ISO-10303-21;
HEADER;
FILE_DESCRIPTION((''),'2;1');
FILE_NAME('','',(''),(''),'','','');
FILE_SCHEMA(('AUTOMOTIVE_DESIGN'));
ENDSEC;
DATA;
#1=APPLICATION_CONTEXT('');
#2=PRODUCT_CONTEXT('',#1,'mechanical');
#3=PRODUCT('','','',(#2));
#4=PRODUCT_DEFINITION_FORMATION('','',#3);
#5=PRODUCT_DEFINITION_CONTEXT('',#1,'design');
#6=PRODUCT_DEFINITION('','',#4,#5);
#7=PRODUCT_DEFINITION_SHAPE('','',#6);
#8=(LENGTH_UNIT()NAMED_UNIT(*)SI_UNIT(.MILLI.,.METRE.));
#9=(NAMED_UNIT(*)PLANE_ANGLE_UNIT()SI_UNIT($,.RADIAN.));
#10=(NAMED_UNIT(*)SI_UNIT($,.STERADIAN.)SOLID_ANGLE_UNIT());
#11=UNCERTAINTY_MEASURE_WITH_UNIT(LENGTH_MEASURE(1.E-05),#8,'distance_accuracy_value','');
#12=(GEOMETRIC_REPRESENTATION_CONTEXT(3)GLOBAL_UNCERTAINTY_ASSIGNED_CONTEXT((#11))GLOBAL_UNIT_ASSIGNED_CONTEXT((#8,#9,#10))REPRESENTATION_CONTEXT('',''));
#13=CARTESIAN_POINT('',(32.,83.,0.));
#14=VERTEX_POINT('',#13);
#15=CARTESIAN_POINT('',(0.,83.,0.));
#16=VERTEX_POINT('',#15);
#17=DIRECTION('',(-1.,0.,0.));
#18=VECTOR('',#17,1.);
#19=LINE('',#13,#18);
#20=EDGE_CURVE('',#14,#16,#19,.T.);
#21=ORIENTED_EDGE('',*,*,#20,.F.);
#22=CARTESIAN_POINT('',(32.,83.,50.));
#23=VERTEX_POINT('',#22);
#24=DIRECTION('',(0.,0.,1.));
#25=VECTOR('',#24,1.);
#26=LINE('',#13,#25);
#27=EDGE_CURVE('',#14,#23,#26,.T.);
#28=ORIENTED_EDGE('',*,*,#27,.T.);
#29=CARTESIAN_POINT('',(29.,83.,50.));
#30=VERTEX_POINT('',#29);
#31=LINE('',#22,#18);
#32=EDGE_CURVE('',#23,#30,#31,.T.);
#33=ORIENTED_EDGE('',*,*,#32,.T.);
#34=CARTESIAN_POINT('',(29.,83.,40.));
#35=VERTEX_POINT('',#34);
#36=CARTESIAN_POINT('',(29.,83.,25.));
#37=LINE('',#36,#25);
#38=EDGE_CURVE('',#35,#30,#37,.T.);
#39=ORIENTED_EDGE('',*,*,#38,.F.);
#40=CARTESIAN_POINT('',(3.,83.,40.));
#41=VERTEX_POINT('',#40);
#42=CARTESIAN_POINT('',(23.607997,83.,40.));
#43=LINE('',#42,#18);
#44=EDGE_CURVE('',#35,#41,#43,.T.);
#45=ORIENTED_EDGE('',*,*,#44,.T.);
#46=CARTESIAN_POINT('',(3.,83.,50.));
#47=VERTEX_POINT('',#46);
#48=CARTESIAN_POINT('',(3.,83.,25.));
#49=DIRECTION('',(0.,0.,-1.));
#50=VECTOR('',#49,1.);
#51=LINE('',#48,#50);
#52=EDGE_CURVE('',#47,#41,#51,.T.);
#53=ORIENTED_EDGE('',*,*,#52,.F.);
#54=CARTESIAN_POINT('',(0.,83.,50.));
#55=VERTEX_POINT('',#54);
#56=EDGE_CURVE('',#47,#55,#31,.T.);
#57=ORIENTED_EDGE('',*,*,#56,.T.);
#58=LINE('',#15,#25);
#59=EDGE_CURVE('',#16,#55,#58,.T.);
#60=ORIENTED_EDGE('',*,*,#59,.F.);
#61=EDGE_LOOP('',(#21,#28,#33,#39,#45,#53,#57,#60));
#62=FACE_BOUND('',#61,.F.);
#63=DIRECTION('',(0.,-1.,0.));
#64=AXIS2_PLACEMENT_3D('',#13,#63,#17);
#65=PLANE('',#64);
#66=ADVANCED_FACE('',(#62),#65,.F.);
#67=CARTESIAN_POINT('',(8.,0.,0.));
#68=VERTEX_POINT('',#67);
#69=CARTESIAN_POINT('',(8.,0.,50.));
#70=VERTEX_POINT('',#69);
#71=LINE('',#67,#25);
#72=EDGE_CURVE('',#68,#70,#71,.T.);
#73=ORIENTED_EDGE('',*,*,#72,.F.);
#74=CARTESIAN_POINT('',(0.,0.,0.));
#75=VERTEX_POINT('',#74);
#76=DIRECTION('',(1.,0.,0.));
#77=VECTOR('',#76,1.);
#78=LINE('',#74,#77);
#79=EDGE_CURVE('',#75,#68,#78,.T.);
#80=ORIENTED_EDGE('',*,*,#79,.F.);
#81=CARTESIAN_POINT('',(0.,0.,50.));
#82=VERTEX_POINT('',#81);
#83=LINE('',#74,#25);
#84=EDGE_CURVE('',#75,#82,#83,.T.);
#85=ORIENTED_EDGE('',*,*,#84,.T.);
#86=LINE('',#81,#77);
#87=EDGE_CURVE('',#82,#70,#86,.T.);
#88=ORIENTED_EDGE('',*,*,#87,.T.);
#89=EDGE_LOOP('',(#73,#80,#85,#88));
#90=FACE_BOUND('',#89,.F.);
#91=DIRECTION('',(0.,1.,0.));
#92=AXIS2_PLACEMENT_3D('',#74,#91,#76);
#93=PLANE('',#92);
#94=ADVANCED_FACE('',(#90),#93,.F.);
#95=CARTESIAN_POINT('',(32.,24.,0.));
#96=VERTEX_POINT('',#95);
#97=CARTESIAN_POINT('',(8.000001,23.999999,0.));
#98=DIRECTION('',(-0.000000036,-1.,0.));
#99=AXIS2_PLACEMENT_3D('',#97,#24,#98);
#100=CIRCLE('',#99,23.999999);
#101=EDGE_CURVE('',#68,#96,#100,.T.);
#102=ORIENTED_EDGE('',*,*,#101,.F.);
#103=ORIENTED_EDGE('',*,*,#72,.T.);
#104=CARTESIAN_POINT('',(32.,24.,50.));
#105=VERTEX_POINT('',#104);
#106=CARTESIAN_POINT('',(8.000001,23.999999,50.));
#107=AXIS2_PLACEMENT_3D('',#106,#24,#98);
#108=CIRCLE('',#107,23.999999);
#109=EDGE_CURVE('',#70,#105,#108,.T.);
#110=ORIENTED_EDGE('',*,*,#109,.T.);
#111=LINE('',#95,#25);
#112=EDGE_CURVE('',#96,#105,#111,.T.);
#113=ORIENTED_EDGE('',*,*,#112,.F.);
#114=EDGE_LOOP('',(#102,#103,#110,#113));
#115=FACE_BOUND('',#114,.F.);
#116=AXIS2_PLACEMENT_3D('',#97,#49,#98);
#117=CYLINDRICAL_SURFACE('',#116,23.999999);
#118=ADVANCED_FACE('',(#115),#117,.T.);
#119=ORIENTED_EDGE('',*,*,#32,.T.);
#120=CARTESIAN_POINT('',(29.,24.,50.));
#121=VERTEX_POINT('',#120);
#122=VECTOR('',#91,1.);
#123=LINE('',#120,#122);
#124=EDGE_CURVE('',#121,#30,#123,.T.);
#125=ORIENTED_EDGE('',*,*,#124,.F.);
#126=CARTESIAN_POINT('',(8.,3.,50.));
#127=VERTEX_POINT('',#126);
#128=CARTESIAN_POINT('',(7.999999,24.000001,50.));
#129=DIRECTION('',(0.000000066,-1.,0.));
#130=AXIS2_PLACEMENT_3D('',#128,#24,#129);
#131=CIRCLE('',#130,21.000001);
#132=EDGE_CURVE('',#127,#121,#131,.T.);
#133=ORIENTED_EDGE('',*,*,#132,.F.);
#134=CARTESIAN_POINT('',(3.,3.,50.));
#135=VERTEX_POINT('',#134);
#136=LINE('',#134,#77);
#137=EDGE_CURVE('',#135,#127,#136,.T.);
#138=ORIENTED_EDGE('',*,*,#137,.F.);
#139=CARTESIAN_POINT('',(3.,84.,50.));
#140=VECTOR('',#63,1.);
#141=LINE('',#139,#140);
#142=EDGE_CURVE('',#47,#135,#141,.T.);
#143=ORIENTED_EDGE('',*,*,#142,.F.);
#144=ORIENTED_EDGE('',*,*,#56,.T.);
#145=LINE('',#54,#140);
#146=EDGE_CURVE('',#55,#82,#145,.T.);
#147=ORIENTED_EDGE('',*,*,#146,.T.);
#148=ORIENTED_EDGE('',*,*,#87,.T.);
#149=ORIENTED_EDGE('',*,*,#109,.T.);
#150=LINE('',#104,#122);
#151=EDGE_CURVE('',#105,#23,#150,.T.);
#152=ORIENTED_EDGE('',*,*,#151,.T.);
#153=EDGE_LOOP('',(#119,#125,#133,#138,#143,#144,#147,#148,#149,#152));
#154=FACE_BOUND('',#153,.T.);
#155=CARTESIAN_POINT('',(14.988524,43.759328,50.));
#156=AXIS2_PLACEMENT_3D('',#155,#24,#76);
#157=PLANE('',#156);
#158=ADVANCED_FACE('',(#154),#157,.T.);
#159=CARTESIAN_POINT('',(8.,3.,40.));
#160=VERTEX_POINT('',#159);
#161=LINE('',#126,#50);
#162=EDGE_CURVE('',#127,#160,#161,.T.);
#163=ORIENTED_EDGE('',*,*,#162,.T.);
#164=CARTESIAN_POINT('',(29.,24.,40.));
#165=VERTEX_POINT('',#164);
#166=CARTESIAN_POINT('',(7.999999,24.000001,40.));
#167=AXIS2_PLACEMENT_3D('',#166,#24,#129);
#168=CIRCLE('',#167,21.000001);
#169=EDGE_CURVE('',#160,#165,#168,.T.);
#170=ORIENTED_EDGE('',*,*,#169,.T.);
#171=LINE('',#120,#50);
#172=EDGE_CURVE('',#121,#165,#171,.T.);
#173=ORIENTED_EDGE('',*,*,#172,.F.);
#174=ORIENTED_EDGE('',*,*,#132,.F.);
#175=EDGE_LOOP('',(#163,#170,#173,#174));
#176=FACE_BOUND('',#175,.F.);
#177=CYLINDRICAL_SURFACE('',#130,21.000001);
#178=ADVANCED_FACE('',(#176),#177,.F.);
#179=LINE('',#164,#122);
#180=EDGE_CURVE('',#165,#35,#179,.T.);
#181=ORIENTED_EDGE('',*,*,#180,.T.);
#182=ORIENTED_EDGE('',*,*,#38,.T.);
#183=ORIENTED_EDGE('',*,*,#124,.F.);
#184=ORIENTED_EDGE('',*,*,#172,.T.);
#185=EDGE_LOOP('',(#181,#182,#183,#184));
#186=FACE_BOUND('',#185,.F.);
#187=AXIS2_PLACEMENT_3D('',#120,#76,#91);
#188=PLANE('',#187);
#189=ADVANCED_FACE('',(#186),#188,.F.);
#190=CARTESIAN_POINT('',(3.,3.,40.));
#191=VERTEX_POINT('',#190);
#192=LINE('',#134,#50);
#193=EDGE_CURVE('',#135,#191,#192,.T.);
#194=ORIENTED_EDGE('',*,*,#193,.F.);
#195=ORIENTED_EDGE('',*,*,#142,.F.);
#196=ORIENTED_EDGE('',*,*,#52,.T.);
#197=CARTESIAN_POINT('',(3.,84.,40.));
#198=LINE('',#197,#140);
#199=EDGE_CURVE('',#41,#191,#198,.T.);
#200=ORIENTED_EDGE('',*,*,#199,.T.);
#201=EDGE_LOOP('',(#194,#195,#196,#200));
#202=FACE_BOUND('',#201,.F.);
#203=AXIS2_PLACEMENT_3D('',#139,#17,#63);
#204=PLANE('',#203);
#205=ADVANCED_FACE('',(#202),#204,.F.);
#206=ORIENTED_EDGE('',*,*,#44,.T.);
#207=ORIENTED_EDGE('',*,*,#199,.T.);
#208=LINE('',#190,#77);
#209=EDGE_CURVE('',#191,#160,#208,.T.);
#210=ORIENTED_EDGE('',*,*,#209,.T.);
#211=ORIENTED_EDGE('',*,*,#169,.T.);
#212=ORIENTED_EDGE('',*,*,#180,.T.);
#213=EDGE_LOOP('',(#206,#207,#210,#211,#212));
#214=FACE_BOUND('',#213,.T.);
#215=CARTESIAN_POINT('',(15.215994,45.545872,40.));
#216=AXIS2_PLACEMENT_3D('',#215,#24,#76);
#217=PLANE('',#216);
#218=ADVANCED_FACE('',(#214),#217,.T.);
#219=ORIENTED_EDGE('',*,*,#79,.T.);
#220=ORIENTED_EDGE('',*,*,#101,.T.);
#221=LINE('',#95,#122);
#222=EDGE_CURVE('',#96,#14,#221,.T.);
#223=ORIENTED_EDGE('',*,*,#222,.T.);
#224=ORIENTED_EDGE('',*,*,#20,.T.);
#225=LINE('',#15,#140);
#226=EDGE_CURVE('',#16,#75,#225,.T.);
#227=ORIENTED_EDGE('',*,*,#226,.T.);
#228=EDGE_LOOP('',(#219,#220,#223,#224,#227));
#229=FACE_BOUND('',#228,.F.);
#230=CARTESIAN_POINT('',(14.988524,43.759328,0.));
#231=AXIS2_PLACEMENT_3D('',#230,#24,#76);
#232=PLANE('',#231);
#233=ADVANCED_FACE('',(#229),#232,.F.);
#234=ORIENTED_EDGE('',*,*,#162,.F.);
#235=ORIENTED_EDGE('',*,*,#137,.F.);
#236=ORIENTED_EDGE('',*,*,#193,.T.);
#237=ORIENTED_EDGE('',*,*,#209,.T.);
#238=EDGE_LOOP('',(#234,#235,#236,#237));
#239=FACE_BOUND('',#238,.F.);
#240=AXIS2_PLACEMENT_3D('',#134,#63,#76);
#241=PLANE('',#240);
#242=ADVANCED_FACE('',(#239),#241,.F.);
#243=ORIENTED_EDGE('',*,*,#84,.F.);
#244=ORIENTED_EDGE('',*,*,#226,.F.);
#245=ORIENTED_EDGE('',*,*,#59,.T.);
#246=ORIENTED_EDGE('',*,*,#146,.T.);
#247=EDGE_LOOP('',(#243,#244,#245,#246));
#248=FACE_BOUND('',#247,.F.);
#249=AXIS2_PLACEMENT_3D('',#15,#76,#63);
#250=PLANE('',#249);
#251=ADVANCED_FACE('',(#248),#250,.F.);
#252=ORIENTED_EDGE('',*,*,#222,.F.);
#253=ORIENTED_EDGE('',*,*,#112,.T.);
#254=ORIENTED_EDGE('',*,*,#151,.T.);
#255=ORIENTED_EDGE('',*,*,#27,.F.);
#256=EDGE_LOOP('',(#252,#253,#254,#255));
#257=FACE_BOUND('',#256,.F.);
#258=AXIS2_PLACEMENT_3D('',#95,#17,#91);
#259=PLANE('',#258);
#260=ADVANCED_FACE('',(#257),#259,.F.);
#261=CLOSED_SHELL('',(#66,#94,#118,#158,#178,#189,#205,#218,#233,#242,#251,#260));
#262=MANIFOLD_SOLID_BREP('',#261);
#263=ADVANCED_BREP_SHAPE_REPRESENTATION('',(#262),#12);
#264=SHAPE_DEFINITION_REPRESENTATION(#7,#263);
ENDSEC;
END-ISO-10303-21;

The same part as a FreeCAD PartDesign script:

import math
import FreeCAD as App
import Part
import Sketcher

V = App.Vector

doc = App.newDocument("Part")
params = doc.addObject("Spreadsheet::Sheet", "Params")
for row, (alias, value) in enumerate([
    ("sketch1_radius", "23.999999 mm"),
    ("sketch1_width", "8 mm"),
    ("sketch1_height", "59 mm"),
    ("pad1_length", "50 mm"),
    ("sketch2_radius", "21.000001 mm"),
    ("sketch2_width", "5 mm"),
    ("sketch2_height", "81 mm"),
    ("pocket1_length", "10 mm"),
], start=1):
    params.set(f"A{row}", alias)
    params.set(f"B{row}", "=" + value)
    params.setAlias(f"B{row}", alias)

body = doc.addObject("PartDesign::Body", "Body")

sketch1 = body.newObject("Sketcher::SketchObject", "Sketch")
sketch1.AttachmentSupport = (doc.getObject("XY_Plane"), [""])
sketch1.MapMode = "FlatFace"
sketch1.addGeometry([
    Part.LineSegment(V(0, 0, 0), V(8, 0, 0)),
    Part.ArcOfCircle(Part.Circle(V(8.000001, 23.999999, 0), V(0, 0, 1), 23.999999), math.radians(-90.000002), math.radians(0.000002)),
    Part.LineSegment(V(32, 24, 0), V(32, 83, 0)),
    Part.LineSegment(V(32, 83, 0), V(0, 83, 0)),
    Part.LineSegment(V(0, 83, 0), V(0, 0, 0)),
], False)
sketch1.addConstraint([
    Sketcher.Constraint("Tangent", 0, 2, 1, 1),
    Sketcher.Constraint("Tangent", 1, 2, 2, 1),
    Sketcher.Constraint("Coincident", 2, 2, 3, 1),
    Sketcher.Constraint("Coincident", 3, 2, 4, 1),
    Sketcher.Constraint("Coincident", 4, 2, 0, 1),
    Sketcher.Constraint("Horizontal", 0),
    Sketcher.Constraint("Vertical", 2),
    Sketcher.Constraint("Horizontal", 3),
    Sketcher.Constraint("Vertical", 4),
    Sketcher.Constraint("Coincident", 4, 2, -1, 1),
    Sketcher.Constraint("Radius", 1, 23.999999),
    Sketcher.Constraint("DistanceX", 0, 1, 0, 2, 8.0),
    Sketcher.Constraint("DistanceY", 2, 1, 2, 2, 59.0),
])
sketch1.setExpression("Constraints[10]", "Params.sketch1_radius")
sketch1.setExpression("Constraints[11]", "Params.sketch1_width")
sketch1.setExpression("Constraints[12]", "Params.sketch1_height")
pad1 = body.newObject("PartDesign::Pad", "Pad")
pad1.Profile = sketch1
pad1.setExpression("Length", "Params.pad1_length")

sketch2 = body.newObject("Sketcher::SketchObject", "Sketch001")
sketch2.AttachmentSupport = (doc.getObject("XY_Plane"), [""])
sketch2.MapMode = "FlatFace"
sketch2.AttachmentOffset = App.Placement(V(0, 0, 50), App.Rotation())
sketch2.addGeometry([
    Part.LineSegment(V(3, 84, 0), V(3, 3, 0)),
    Part.LineSegment(V(3, 3, 0), V(8, 3, 0)),
    Part.ArcOfCircle(Part.Circle(V(7.999999, 24.000001, 0), V(0, 0, 1), 21.000001), math.radians(-89.999996), math.radians(-0.000004)),
    Part.LineSegment(V(29, 24, 0), V(29, 84, 0)),
    Part.LineSegment(V(29, 84, 0), V(3, 84, 0)),
], False)
sketch2.addConstraint([
    Sketcher.Constraint("Coincident", 0, 2, 1, 1),
    Sketcher.Constraint("Tangent", 1, 2, 2, 1),
    Sketcher.Constraint("Tangent", 2, 2, 3, 1),
    Sketcher.Constraint("Coincident", 3, 2, 4, 1),
    Sketcher.Constraint("Coincident", 4, 2, 0, 1),
    Sketcher.Constraint("Vertical", 0),
    Sketcher.Constraint("Horizontal", 1),
    Sketcher.Constraint("Vertical", 3),
    Sketcher.Constraint("Horizontal", 4),
    Sketcher.Constraint("Radius", 2, 21.000001),
    Sketcher.Constraint("DistanceX", 1, 1, 1, 2, 5.0),
    Sketcher.Constraint("DistanceY", 0, 2, 0, 1, 81.0),
    Sketcher.Constraint("DistanceX", -1, 1, 2, 3, 7.999999),
    Sketcher.Constraint("DistanceY", -1, 1, 2, 3, 24.000001),
])
sketch2.setExpression("Constraints[9]", "Params.sketch2_radius")
sketch2.setExpression("Constraints[10]", "Params.sketch2_width")
sketch2.setExpression("Constraints[11]", "Params.sketch2_height")
pocket1 = body.newObject("PartDesign::Pocket", "Pocket")
pocket1.Profile = sketch2
pocket1.setExpression("Length", "Params.pocket1_length")

doc.recompute()
